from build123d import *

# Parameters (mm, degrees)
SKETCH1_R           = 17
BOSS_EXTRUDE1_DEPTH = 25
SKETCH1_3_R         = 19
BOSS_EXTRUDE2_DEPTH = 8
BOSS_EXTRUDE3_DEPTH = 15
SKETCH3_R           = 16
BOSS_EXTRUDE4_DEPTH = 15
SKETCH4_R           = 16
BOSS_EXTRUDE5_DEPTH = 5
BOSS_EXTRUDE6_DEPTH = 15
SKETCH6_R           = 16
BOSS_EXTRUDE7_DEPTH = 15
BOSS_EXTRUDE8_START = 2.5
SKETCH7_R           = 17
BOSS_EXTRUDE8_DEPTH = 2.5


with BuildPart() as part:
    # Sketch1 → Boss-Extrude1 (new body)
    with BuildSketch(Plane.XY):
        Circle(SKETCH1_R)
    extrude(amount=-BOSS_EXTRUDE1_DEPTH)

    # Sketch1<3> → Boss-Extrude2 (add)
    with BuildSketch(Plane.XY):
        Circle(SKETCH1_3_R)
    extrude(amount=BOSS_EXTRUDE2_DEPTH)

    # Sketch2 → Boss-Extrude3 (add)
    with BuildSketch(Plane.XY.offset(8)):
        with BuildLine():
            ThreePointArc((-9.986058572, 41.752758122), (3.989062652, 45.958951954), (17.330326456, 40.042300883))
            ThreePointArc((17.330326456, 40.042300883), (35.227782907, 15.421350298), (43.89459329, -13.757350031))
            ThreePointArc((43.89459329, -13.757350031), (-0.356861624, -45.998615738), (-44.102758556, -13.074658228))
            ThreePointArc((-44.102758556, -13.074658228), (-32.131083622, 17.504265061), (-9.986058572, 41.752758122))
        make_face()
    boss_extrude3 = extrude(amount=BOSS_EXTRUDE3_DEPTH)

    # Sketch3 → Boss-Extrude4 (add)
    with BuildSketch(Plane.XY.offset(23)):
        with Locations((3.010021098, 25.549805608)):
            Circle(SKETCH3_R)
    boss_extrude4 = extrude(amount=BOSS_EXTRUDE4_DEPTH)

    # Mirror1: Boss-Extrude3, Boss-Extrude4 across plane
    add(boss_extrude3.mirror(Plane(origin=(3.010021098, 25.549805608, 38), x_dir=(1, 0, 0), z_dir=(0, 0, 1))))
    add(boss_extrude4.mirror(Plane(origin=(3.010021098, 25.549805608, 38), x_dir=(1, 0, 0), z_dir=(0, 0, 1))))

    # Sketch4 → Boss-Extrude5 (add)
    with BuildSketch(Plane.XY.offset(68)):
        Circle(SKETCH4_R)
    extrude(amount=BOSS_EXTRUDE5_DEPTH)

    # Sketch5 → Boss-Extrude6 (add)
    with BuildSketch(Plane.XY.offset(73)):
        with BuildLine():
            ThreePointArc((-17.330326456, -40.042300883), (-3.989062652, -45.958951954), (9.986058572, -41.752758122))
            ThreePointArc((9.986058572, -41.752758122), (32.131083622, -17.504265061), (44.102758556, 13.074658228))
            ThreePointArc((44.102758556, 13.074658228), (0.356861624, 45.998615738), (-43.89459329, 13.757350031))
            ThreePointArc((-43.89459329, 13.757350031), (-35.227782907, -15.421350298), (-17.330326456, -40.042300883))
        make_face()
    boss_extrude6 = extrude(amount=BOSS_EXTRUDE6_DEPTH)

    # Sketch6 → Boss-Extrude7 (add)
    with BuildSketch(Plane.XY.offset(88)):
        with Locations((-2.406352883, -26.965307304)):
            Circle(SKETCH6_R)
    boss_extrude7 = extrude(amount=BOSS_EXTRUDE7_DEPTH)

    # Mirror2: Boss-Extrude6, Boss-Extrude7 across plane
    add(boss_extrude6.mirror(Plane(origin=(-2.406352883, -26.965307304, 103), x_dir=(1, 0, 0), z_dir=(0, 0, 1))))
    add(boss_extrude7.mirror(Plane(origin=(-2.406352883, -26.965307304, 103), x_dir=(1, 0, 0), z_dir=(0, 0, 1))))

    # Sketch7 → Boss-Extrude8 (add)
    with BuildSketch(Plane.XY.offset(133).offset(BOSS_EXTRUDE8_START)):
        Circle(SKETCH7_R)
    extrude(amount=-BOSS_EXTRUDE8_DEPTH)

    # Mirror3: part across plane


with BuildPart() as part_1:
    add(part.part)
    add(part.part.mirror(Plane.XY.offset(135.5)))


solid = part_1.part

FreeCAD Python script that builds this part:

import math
import FreeCAD as App
import Part
import Sketcher

doc = App.newDocument("Part")
body = doc.addObject("PartDesign::Body", "Body")

# Sketch on XY plane
sketch1 = doc.addObject("Sketcher::SketchObject", "Sketch")
body.addObject(sketch1)
sketch1.AttachmentSupport = (doc.XY_Plane, [""])
sketch1.MapMode = "FlatFace"
sketch1.addGeometry(Part.Circle(App.Vector(0, 0, 0), App.Vector(0, 0, 1), 17), False)
sketch1.addConstraint([
    Sketcher.Constraint("Coincident", 0, 3, -1, 1),
    Sketcher.Constraint("Diameter", 0, 34.0),
])
pad1 = doc.addObject("PartDesign::Pad", "Pad")
body.addObject(pad1)
pad1.Profile = sketch1
pad1.Length = 25
pad1.Reversed = True

# Sketch on XY plane
sketch2 = doc.addObject("Sketcher::SketchObject", "Sketch001")
body.addObject(sketch2)
sketch2.AttachmentSupport = (doc.XY_Plane, [""])
sketch2.MapMode = "FlatFace"
sketch2.addGeometry(Part.Circle(App.Vector(0, 0, 0), App.Vector(0, 0, 1), 19), False)
sketch2.addConstraint([
    Sketcher.Constraint("Coincident", 0, 3, -1, 1),
    Sketcher.Constraint("Diameter", 0, 38.0),
])
pad2 = doc.addObject("PartDesign::Pad", "Pad001")
body.addObject(pad2)
pad2.Profile = sketch2
pad2.Length = 8

# Sketch on XY plane
sketch3 = doc.addObject("Sketcher::SketchObject", "Sketch002")
body.addObject(sketch3)
sketch3.AttachmentSupport = (doc.XY_Plane, [""])
sketch3.MapMode = "FlatFace"
sketch3.AttachmentOffset = App.Placement(App.Vector(0, 0, 8), App.Rotation())
sketch3.addGeometry([
    Part.ArcOfCircle(Part.Circle(App.Vector(2.676686, 25, 0), App.Vector(0, 0, 1), 21), math.radians(45.749844), math.radians(127.084186)),
    Part.ArcOfCircle(Part.Circle(App.Vector(44.282846, -30.044777, 0), App.Vector(0, 0, 1), 90), math.radians(127.084186), math.radians(169.131423)),
    Part.ArcOfCircle(Part.Circle(App.Vector(0, 0, 0), App.Vector(0, 0, 1), 46), math.radians(-163.487071), math.radians(-17.401923)),
    Part.ArcOfCircle(Part.Circle(App.Vector(-45.470991, -24.424703, 0), App.Vector(0, 0, 1), 90), math.radians(6.80705), math.radians(45.749844)),
], False)
sketch3.addConstraint([
    Sketcher.Constraint("Tangent", 0, 2, 1, 1),
    Sketcher.Constraint("Coincident", 1, 2, 2, 1),
    Sketcher.Constraint("Coincident", 2, 2, 3, 1),
    Sketcher.Constraint("Tangent", 3, 2, 0, 1),
    Sketcher.Constraint("Coincident", 2, 3, -1, 1),
    Sketcher.Constraint("Equal", 1, 3),
    Sketcher.Constraint("Radius", 0, 21.0),
    Sketcher.Constraint("Radius", 1, 90.0),
    Sketcher.Constraint("Radius", 2, 46.0),
    Sketcher.Constraint("DistanceY", -1, 1, 0, 3, 25.0),
    Sketcher.Constraint("DistanceY", -1, 1, 3, 2, 40.042301),
    Sketcher.Constraint("DistanceX", 1, 2, 0, 2, 34.1167),
    Sketcher.Constraint("DistanceX", 3, 3, -1, 1, 45.470991),
])
pad3 = doc.addObject("PartDesign::Pad", "Pad002")
body.addObject(pad3)
pad3.Profile = sketch3
pad3.Length = 15

# Sketch on XY plane
sketch4 = doc.addObject("Sketcher::SketchObject", "Sketch003")
body.addObject(sketch4)
sketch4.AttachmentSupport = (doc.XY_Plane, [""])
sketch4.MapMode = "FlatFace"
sketch4.AttachmentOffset = App.Placement(App.Vector(0, 0, 23), App.Rotation())
sketch4.addGeometry(Part.Circle(App.Vector(3.010021, 25.549806, 0), App.Vector(0, 0, 1), 16), False)
sketch4.addConstraint([
    Sketcher.Constraint("Diameter", 0, 32.0),
    Sketcher.Constraint("DistanceX", -1, 1, 0, 3, 3.010021),
    Sketcher.Constraint("DistanceY", -1, 1, 0, 3, 25.549806),
])
pad4 = doc.addObject("PartDesign::Pad", "Pad003")
body.addObject(pad4)
pad4.Profile = sketch4
pad4.Length = 15
doc.recompute()

datumplane = doc.addObject("PartDesign::Plane", "DatumPlane")
body.addObject(datumplane)
datumplane.AttachmentSupport = (doc.XY_Plane, [""])
datumplane.MapMode = "FlatFace"
datumplane.AttachmentOffset = App.Placement(App.Vector(0, 0, 38), App.Rotation())
mirrored = doc.addObject("PartDesign::Mirrored", "Mirrored")
body.addObject(mirrored)
mirrored.Originals = [pad3, pad4]
mirrored.MirrorPlane = (datumplane, [""])
body.Tip = mirrored

# Sketch on XY plane
sketch5 = doc.addObject("Sketcher::SketchObject", "Sketch004")
body.addObject(sketch5)
sketch5.AttachmentSupport = (doc.XY_Plane, [""])
sketch5.MapMode = "FlatFace"
sketch5.AttachmentOffset = App.Placement(App.Vector(0, 0, 68), App.Rotation())
sketch5.addGeometry(Part.Circle(App.Vector(0, 0, 0), App.Vector(0, 0, 1), 16), False)
sketch5.addConstraint([
    Sketcher.Constraint("Coincident", 0, 3, -1, 1),
    Sketcher.Constraint("Diameter", 0, 32.0),
])
pad5 = doc.addObject("PartDesign::Pad", "Pad004")
body.addObject(pad5)
pad5.Profile = sketch5
pad5.Length = 5

# Sketch on XY plane
sketch6 = doc.addObject("Sketcher::SketchObject", "Sketch005")
body.addObject(sketch6)
sketch6.AttachmentSupport = (doc.XY_Plane, [""])
sketch6.MapMode = "FlatFace"
sketch6.AttachmentOffset = App.Placement(App.Vector(0, 0, 73), App.Rotation())
sketch6.addGeometry([
    Part.ArcOfCircle(Part.Circle(App.Vector(-2.676686, -25, 0), App.Vector(0, 0, 1), 21), math.radians(-134.250156), math.radians(-52.915814)),
    Part.ArcOfCircle(Part.Circle(App.Vector(-44.282846, 30.044777, 0), App.Vector(0, 0, 1), 90), math.radians(-52.915814), math.radians(-10.868577)),
    Part.ArcOfCircle(Part.Circle(App.Vector(0, 0, 0), App.Vector(0, 0, 1), 46), math.radians(16.512929), math.radians(162.598077)),
    Part.ArcOfCircle(Part.Circle(App.Vector(45.470991, 24.424703, 0), App.Vector(0, 0, 1), 90), math.radians(-173.19295), math.radians(-134.250156)),
], False)
sketch6.addConstraint([
    Sketcher.Constraint("Tangent", 0, 2, 1, 1),
    Sketcher.Constraint("Coincident", 1, 2, 2, 1),
    Sketcher.Constraint("Coincident", 2, 2, 3, 1),
    Sketcher.Constraint("Tangent", 3, 2, 0, 1),
    Sketcher.Constraint("Coincident", 2, 3, -1, 1),
    Sketcher.Constraint("Equal", 1, 3),
    Sketcher.Constraint("Radius", 0, 21.0),
    Sketcher.Constraint("Radius", 1, 90.0),
    Sketcher.Constraint("Radius", 2, 46.0),
    Sketcher.Constraint("DistanceY", 0, 3, -1, 1, 25.0),
    Sketcher.Constraint("DistanceY", 3, 2, -1, 1, 40.042301),
    Sketcher.Constraint("DistanceX", 0, 2, 1, 2, 34.1167),
    Sketcher.Constraint("DistanceX", -1, 1, 3, 3, 45.470991),
])
pad6 = doc.addObject("PartDesign::Pad", "Pad005")
body.addObject(pad6)
pad6.Profile = sketch6
pad6.Length = 15

# Sketch on XY plane
sketch7 = doc.addObject("Sketcher::SketchObject", "Sketch006")
body.addObject(sketch7)
sketch7.AttachmentSupport = (doc.XY_Plane, [""])
sketch7.MapMode = "FlatFace"
sketch7.AttachmentOffset = App.Placement(App.Vector(0, 0, 88), App.Rotation())
sketch7.addGeometry(Part.Circle(App.Vector(-2.406353, -26.965307, 0), App.Vector(0, 0, 1), 16), False)
sketch7.addConstraint([
    Sketcher.Constraint("Diameter", 0, 32.0),
    Sketcher.Constraint("DistanceX", 0, 3, -1, 1, 2.406353),
    Sketcher.Constraint("DistanceY", 0, 3, -1, 1, 26.965307),
])
pad7 = doc.addObject("PartDesign::Pad", "Pad006")
body.addObject(pad7)
pad7.Profile = sketch7
pad7.Length = 15
doc.recompute()

datumplane2 = doc.addObject("PartDesign::Plane", "DatumPlane001")
body.addObject(datumplane2)
datumplane2.AttachmentSupport = (doc.XY_Plane, [""])
datumplane2.MapMode = "FlatFace"
datumplane2.AttachmentOffset = App.Placement(App.Vector(0, 0, 103), App.Rotation())
mirrored2 = doc.addObject("PartDesign::Mirrored", "Mirrored001")
body.addObject(mirrored2)
mirrored2.Originals = [pad6, pad7]
mirrored2.MirrorPlane = (datumplane2, [""])
body.Tip = mirrored2

# Sketch on XY plane
sketch8 = doc.addObject("Sketcher::SketchObject", "Sketch007")
body.addObject(sketch8)
sketch8.AttachmentSupport = (doc.XY_Plane, [""])
sketch8.MapMode = "FlatFace"
sketch8.AttachmentOffset = App.Placement(App.Vector(0, 0, 135.5), App.Rotation())
sketch8.addGeometry(Part.Circle(App.Vector(0, 0, 0), App.Vector(0, 0, 1), 17), False)
sketch8.addConstraint([
    Sketcher.Constraint("Coincident", 0, 3, -1, 1),
    Sketcher.Constraint("Diameter", 0, 34.0),
])
pad8 = doc.addObject("PartDesign::Pad", "Pad007")
body.addObject(pad8)
pad8.Profile = sketch8
pad8.Length = 2.5
pad8.Reversed = True
body2 = doc.addObject("PartDesign::Body", "Body001")
doc.recompute()

body2.BaseFeature = body
doc.recompute()

mirroring = doc.addObject("Part::Mirroring", "Mirroring")
mirroring.Source = body
mirroring.Base = App.Vector(0, 0, 135.5)
mirroring.Normal = App.Vector(0, 0, 1)
body3 = doc.addObject("PartDesign::Body", "Body002")
body3.BaseFeature = mirroring
boolean = doc.addObject("PartDesign::Boolean", "Boolean")
body2.addObject(boolean)
boolean.Type = "Fuse"
boolean.addObjects([body3])
doc.recompute()
mirroring.Visibility = False

doc.recompute()
